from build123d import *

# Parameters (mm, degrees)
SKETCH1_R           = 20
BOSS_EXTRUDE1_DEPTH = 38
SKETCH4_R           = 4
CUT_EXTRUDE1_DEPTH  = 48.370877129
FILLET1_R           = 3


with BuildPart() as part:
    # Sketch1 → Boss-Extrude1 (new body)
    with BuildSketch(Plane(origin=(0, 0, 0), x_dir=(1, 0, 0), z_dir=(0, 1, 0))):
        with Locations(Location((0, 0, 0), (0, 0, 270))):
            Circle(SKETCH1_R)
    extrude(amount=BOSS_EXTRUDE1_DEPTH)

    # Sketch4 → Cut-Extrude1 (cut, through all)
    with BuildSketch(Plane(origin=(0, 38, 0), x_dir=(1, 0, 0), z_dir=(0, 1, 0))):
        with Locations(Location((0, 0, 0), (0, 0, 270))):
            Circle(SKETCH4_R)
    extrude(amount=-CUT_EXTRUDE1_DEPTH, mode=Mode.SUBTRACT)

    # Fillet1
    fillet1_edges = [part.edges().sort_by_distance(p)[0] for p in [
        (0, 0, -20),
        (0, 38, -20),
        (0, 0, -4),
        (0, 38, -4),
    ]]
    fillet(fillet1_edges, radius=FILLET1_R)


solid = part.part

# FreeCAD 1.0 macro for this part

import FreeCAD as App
import Part
import Sketcher
from FreeCAD import Vector
Q = App.Units.Quantity


def edges_at(feature, points):
    """Names of the edges that pass closest to the given points."""
    edges = feature.Shape.Edges
    near = lambda p: min(range(len(edges)), key=lambda i: edges[i].distToShape(Part.Vertex(*p))[0])
    return sorted({f"Edge{near(p) + 1}" for p in points})

doc = App.newDocument("Part")
body = doc.addObject("PartDesign::Body", "Body")

# Sketch on XZ plane
sketch1 = doc.addObject("Sketcher::SketchObject", "Sketch")
body.addObject(sketch1)
sketch1.AttachmentSupport = (doc.XZ_Plane, [""])
sketch1.MapMode = "FlatFace"
sketch1.addGeometry(Part.Circle(Vector(0, 0, 0), Vector(0, 0, 1), 20), False)
sketch1.addConstraint([
    Sketcher.Constraint("Coincident", 0, 3, -1, 1),
    Sketcher.Constraint("Diameter", 0, Q("40 mm")),
])
pad1 = doc.addObject("PartDesign::Pad", "Pad")
body.addObject(pad1)
pad1.Profile = sketch1
pad1.Length = 38
pad1.Reversed = True

# Sketch on XZ plane
sketch2 = doc.addObject("Sketcher::SketchObject", "Sketch001")
body.addObject(sketch2)
sketch2.AttachmentSupport = (doc.XZ_Plane, [""])
sketch2.MapMode = "FlatFace"
sketch2.AttachmentOffset = App.Placement(Vector(0, 0, -38), App.Rotation())
sketch2.addGeometry(Part.Circle(Vector(0, 0, 0), Vector(0, 0, 1), 4), False)
sketch2.addConstraint([
    Sketcher.Constraint("Coincident", 0, 3, -1, 1),
    Sketcher.Constraint("Diameter", 0, Q("8 mm")),
])
pocket1 = doc.addObject("PartDesign::Pocket", "Pocket")
body.addObject(pocket1)
pocket1.Profile = sketch2
pocket1.Type = "ThroughAll"
pocket1.Reversed = True
doc.recompute()

fillet = doc.addObject("PartDesign::Fillet", "Fillet")
body.addObject(fillet)
fillet.Base = (pocket1, edges_at(pocket1, [
    (0, 0, -20),
    (0, 38, -20),
    (0, 0, -4),
    (0, 38, -4),
]))
fillet.Radius = 3

doc.recompute()
